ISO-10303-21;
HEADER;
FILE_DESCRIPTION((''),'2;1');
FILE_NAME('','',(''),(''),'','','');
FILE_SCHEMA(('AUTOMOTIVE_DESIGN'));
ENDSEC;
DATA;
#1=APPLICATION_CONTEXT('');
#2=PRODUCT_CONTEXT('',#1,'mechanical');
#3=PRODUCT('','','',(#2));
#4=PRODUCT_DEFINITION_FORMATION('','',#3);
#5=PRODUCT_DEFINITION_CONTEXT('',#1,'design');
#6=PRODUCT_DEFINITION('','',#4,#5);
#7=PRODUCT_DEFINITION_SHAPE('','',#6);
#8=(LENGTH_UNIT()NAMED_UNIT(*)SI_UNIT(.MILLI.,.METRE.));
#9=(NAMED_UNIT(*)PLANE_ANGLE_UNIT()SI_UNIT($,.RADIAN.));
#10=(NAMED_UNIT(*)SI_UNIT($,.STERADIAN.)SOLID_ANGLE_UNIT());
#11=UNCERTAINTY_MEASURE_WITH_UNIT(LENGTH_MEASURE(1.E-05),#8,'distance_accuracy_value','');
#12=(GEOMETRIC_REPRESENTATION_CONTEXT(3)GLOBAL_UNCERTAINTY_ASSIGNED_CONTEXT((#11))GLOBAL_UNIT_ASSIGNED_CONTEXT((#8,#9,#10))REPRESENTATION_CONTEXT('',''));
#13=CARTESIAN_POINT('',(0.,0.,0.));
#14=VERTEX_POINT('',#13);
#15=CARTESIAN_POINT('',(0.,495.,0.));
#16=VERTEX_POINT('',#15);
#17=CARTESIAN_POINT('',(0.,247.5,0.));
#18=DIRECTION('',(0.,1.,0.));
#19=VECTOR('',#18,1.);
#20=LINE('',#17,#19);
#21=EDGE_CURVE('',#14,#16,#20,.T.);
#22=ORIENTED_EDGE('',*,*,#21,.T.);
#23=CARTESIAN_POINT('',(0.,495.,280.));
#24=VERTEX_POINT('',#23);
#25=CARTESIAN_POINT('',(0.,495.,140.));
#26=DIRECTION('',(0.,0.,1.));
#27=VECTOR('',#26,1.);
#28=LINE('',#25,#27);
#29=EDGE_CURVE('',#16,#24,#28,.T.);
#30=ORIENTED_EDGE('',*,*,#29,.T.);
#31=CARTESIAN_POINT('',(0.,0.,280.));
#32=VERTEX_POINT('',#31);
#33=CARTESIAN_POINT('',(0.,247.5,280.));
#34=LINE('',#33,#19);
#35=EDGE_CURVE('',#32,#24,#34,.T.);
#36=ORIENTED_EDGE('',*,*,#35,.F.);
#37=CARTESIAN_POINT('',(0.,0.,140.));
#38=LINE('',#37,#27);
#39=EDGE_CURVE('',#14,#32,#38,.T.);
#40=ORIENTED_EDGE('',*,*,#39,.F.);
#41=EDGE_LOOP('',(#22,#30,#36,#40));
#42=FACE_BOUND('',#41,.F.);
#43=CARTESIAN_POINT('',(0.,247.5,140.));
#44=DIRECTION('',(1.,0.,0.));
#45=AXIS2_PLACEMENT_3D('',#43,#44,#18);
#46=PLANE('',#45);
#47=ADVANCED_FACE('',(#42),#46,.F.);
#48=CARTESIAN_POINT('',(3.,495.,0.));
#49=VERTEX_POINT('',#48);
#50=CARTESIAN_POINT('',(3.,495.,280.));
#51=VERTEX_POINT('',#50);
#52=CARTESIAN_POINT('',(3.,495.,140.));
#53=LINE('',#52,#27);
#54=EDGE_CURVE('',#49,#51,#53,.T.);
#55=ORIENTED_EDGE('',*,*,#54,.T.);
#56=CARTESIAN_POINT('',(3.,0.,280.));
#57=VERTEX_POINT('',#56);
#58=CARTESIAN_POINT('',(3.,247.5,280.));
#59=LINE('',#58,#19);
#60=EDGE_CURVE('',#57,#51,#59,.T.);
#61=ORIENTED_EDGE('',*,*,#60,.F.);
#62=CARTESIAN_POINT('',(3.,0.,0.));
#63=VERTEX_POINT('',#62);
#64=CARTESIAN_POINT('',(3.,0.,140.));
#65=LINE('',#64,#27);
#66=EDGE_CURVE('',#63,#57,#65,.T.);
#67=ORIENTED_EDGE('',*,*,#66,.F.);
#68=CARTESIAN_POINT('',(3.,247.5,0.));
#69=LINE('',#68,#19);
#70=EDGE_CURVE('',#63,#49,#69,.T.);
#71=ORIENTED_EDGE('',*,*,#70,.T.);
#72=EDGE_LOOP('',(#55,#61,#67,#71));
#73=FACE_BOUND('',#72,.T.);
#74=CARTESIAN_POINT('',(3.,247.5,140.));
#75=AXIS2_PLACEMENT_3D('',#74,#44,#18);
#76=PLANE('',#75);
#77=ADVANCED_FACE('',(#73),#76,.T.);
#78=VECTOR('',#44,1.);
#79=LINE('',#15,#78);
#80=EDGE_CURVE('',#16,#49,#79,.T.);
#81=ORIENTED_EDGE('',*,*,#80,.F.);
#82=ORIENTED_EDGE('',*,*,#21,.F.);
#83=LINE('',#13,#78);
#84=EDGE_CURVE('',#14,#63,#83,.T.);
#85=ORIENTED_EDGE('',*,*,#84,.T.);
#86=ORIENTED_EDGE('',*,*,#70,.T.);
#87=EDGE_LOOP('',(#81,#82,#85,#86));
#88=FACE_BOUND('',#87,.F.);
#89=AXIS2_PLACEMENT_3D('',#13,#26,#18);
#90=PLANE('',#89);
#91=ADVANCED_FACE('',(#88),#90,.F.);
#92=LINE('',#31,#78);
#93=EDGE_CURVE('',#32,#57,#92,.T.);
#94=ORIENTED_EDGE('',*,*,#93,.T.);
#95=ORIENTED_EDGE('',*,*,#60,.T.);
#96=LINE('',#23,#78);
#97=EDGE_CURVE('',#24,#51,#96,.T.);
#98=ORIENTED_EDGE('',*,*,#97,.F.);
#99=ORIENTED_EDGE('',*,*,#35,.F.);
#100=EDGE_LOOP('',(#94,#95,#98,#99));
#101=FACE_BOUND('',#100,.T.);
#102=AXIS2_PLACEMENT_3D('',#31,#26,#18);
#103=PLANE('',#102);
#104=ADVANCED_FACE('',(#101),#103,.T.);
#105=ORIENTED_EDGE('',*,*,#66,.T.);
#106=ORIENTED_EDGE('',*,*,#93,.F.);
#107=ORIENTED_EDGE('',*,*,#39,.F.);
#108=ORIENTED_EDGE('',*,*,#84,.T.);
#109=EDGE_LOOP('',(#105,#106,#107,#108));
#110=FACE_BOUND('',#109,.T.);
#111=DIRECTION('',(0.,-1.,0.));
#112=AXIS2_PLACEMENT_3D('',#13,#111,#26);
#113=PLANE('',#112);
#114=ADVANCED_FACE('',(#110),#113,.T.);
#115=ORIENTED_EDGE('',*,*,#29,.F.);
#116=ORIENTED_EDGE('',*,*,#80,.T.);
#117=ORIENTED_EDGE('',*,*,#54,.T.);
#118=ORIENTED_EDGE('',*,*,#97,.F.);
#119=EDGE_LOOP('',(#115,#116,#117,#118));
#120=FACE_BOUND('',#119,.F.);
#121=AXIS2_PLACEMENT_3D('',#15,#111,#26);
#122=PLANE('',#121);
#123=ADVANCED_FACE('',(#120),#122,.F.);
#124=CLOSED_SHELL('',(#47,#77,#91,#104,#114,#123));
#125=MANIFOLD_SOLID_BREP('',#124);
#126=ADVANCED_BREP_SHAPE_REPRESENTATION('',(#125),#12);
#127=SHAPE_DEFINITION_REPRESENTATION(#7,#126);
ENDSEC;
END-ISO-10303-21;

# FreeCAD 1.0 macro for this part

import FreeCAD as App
import Part
import Sketcher
from FreeCAD import Vector
Q = App.Units.Quantity

doc = App.newDocument("Part")
body = doc.addObject("PartDesign::Body", "Body")

# Sketch on YZ plane
sketch1 = body.newObject("Sketcher::SketchObject", "Sketch")
sketch1.AttachmentSupport = (doc.getObject("YZ_Plane"), [""])
sketch1.MapMode = "FlatFace"
sketch1.addGeometry([
    Part.LineSegment(Vector(0, 280, 0), Vector(0, 0, 0)),
    Part.LineSegment(Vector(0, 0, 0), Vector(495, 0, 0)),
    Part.LineSegment(Vector(495, 0, 0), Vector(495, 280, 0)),
    Part.LineSegment(Vector(495, 280, 0), Vector(0, 280, 0)),
], False)
sketch1.addConstraint([
    Sketcher.Constraint("Coincident", 0, 2, 1, 1),
    Sketcher.Constraint("Coincident", 1, 2, 2, 1),
    Sketcher.Constraint("Coincident", 2, 2, 3, 1),
    Sketcher.Constraint("Coincident", 3, 2, 0, 1),
    Sketcher.Constraint("Vertical", 0),
    Sketcher.Constraint("Horizontal", 1),
    Sketcher.Constraint("Vertical", 2),
    Sketcher.Constraint("Horizontal", 3),
    Sketcher.Constraint("Coincident", 0, 2, -1, 1),
    Sketcher.Constraint("DistanceX", 1, 1, 1, 2, Q("495 mm")),
    Sketcher.Constraint("DistanceY", 0, 2, 0, 1, Q("280 mm")),
])
pad1 = body.newObject("PartDesign::Pad", "Pad")
pad1.Profile = sketch1
pad1.Length = 3

doc.recompute()
